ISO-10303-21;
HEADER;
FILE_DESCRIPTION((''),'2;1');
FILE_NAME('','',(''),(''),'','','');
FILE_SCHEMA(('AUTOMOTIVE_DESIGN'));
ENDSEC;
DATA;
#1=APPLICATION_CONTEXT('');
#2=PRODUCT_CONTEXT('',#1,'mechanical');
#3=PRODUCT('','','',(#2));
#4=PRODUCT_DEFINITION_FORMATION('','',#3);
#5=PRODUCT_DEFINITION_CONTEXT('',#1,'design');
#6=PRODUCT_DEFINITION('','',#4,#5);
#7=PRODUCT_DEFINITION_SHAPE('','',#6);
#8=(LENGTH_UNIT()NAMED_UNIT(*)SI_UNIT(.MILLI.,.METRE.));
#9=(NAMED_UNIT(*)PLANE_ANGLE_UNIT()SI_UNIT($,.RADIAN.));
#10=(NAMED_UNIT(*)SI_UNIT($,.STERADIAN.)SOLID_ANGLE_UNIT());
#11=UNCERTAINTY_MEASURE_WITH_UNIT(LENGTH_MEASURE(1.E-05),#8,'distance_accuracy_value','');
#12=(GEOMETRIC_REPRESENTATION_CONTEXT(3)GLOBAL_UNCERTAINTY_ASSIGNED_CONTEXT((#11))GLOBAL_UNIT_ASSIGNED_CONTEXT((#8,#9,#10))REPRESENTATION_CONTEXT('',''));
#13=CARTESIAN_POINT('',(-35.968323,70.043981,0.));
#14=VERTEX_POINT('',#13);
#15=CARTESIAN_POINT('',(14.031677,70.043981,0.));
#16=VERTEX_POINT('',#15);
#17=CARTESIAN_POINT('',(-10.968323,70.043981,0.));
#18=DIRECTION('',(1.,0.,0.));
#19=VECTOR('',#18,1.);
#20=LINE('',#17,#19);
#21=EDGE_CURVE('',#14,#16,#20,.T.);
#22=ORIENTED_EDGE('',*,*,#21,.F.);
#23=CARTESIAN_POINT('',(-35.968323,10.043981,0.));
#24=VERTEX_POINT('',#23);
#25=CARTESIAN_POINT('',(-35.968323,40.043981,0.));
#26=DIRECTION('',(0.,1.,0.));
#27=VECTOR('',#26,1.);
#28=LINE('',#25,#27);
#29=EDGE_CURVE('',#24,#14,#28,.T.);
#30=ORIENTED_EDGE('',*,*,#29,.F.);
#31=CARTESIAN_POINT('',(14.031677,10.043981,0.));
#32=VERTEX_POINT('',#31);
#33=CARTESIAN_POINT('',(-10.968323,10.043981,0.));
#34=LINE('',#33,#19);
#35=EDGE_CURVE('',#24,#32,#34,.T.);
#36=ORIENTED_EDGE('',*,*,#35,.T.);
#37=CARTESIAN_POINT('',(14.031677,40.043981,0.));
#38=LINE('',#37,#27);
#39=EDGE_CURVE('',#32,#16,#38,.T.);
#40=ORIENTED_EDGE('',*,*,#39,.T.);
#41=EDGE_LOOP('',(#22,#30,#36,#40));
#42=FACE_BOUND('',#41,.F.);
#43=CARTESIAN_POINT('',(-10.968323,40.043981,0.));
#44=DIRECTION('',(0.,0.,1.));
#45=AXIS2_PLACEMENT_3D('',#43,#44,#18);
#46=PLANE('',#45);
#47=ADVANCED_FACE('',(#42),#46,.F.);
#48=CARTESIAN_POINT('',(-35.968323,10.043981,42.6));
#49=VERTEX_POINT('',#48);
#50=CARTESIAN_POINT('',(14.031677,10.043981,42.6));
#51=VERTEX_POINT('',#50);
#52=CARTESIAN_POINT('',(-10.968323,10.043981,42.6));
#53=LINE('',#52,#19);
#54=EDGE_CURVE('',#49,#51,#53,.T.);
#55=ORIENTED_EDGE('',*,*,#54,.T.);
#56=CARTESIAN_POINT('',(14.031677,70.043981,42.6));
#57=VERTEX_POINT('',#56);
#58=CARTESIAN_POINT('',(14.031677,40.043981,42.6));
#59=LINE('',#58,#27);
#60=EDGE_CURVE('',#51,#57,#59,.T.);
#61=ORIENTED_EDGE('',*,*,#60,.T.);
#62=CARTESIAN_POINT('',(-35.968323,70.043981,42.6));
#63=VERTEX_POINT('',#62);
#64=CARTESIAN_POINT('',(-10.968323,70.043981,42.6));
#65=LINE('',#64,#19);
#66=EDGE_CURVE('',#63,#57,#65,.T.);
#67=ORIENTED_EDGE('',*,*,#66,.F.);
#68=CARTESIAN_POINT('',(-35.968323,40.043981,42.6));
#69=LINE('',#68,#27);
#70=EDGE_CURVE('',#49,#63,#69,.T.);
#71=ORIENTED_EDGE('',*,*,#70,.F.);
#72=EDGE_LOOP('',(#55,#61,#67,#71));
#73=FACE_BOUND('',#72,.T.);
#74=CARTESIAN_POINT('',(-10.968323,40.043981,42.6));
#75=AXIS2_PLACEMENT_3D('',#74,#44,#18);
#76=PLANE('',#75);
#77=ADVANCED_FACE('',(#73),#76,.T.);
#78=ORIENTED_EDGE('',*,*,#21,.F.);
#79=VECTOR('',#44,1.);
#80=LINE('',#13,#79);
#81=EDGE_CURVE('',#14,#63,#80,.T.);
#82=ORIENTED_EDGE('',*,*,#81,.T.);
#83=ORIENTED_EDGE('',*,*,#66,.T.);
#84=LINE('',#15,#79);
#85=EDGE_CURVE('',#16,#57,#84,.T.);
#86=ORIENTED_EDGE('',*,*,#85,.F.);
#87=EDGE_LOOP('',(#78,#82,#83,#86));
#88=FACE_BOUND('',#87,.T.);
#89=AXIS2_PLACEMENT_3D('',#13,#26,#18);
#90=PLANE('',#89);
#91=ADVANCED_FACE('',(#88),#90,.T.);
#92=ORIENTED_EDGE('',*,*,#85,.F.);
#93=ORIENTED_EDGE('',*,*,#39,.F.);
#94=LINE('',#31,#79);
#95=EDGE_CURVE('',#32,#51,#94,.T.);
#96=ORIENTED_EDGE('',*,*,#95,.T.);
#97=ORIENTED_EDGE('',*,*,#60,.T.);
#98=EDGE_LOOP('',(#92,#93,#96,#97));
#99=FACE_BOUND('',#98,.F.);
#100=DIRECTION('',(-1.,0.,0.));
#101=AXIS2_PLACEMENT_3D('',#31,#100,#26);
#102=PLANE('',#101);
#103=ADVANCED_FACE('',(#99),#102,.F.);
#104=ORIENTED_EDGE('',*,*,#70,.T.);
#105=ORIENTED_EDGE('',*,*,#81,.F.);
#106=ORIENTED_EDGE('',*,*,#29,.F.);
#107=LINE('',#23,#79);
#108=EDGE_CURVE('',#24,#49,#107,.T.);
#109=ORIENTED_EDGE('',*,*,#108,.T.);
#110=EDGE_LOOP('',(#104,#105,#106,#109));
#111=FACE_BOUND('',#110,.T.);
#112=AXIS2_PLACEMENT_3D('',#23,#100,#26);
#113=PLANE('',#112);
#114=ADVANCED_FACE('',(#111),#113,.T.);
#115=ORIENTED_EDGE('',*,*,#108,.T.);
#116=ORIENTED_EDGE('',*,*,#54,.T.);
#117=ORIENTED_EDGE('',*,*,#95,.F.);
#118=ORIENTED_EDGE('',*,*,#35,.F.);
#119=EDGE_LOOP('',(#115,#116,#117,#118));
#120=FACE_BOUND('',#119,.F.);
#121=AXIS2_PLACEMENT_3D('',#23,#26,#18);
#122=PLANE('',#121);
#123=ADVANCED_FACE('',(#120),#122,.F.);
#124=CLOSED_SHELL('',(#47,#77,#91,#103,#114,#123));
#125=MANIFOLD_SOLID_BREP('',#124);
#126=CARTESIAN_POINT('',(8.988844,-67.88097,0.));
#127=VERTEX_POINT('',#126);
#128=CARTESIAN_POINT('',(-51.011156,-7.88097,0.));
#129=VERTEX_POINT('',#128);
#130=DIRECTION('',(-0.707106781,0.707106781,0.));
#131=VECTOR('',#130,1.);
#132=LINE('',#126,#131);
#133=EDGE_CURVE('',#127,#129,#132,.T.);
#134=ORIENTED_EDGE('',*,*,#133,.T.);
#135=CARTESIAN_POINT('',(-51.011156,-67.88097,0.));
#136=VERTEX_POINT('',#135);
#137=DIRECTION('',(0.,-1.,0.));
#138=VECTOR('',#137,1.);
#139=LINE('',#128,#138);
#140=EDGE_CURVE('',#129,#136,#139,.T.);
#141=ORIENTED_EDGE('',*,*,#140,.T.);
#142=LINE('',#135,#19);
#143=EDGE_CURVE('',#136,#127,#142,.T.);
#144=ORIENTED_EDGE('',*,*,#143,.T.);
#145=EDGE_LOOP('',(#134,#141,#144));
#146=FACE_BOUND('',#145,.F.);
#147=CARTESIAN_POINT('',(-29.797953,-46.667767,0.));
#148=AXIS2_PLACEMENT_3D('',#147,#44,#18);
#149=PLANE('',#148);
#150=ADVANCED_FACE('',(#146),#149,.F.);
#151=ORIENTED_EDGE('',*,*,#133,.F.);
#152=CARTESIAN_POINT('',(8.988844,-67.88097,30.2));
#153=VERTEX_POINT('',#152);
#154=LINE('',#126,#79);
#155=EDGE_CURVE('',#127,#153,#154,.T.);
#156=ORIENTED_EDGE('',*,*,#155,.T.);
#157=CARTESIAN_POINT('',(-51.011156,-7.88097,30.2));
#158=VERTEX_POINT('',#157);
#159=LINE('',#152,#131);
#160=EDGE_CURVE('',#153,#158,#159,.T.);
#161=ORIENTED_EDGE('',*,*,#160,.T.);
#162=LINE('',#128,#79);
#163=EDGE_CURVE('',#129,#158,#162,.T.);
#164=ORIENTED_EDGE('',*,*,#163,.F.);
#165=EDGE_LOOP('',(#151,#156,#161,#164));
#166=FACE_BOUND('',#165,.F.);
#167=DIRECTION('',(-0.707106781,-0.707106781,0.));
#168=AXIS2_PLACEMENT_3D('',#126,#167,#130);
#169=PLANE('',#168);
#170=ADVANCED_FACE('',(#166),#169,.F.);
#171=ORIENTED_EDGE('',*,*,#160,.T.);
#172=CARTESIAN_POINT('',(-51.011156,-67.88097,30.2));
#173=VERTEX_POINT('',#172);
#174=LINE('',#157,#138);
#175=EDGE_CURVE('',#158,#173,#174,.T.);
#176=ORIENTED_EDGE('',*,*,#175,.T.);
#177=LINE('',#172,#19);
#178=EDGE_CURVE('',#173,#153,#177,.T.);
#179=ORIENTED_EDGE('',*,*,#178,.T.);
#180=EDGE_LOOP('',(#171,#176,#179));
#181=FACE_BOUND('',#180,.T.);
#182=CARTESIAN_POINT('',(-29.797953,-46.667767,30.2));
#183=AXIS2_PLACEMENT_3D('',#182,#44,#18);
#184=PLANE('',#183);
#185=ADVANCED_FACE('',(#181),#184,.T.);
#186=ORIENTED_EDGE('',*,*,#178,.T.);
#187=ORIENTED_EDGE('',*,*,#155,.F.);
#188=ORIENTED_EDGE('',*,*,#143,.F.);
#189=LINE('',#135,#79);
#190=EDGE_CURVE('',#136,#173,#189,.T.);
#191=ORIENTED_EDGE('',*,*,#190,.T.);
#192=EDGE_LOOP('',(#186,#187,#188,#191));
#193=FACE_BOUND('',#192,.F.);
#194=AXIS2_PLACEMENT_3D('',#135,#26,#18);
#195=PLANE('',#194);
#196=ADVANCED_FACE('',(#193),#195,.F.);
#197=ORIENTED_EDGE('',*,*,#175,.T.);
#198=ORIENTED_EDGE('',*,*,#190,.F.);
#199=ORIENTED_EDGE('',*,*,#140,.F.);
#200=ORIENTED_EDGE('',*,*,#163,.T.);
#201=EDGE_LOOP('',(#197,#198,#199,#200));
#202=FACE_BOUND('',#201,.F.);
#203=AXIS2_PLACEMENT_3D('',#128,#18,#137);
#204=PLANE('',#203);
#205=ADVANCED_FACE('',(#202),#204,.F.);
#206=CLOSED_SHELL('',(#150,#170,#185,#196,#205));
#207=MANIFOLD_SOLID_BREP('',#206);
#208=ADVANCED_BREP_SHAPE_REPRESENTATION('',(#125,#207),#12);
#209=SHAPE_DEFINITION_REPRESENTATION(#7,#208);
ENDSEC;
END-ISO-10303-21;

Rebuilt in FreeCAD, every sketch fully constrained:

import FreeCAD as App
import Part
import Sketcher
from FreeCAD import Vector


def add_polygon(sketch, points):
    """Adds a closed chain of lines whose ends are joined by coincident constraints."""
    first, n = sketch.GeometryCount, len(points)
    for a, b in zip(points, points[1:] + points[:1]):
        sketch.addGeometry(Part.LineSegment(App.Vector(*a, 0), App.Vector(*b, 0)), False)
    for i in range(n):
        sketch.addConstraint(Sketcher.Constraint("Coincident", first + i, 2, first + (i + 1) % n, 1))

doc = App.newDocument("Part")
body = doc.addObject("PartDesign::Body", "Body")

sketch1 = body.newObject("Sketcher::SketchObject", "Sketch")
sketch1.AttachmentSupport = (doc.getObject("XY_Plane"), [""])
sketch1.MapMode = "FlatFace"
add_polygon(sketch1, [(-36, 70), (-36, 10), (14, 10), (14, 70)])
sketch1.addConstraint([
    Sketcher.Constraint("Vertical", 0),
    Sketcher.Constraint("Horizontal", 1),
    Sketcher.Constraint("Vertical", 2),
    Sketcher.Constraint("Horizontal", 3),
    Sketcher.Constraint("DistanceX", 1, 1, 1, 2, 50.0),
    Sketcher.Constraint("DistanceY", 0, 2, 0, 1, 60.0),
    Sketcher.Constraint("DistanceY", -1, 1, 0, 2, 10.043981),
    Sketcher.Constraint("DistanceX", 0, 2, -1, 1, 35.968323),
])
pad1 = body.newObject("PartDesign::Pad", "Pad")
pad1.Profile = sketch1
pad1.Length = 42.6
body2 = doc.addObject("PartDesign::Body", "Body001")

sketch2 = body2.newObject("Sketcher::SketchObject", "Sketch001")
sketch2.AttachmentSupport = (doc.getObject("XY_Plane001"), [""])
sketch2.MapMode = "FlatFace"
add_polygon(sketch2, [(9, -68), (-51, -8), (-51, -68)])
sketch2.addConstraint([
    Sketcher.Constraint("Vertical", 1),
    Sketcher.Constraint("Horizontal", 2),
    Sketcher.Constraint("Equal", 2, 1),
    Sketcher.Constraint("DistanceX", 2, 1, 2, 2, 60.0),
    Sketcher.Constraint("DistanceY", 0, 2, -1, 1, 7.88097),
    Sketcher.Constraint("DistanceX", 0, 2, -1, 1, 51.011156),
])
pad2 = body2.newObject("PartDesign::Pad", "Pad001")
pad2.Profile = sketch2
pad2.Length = 30.2

doc.recompute()
